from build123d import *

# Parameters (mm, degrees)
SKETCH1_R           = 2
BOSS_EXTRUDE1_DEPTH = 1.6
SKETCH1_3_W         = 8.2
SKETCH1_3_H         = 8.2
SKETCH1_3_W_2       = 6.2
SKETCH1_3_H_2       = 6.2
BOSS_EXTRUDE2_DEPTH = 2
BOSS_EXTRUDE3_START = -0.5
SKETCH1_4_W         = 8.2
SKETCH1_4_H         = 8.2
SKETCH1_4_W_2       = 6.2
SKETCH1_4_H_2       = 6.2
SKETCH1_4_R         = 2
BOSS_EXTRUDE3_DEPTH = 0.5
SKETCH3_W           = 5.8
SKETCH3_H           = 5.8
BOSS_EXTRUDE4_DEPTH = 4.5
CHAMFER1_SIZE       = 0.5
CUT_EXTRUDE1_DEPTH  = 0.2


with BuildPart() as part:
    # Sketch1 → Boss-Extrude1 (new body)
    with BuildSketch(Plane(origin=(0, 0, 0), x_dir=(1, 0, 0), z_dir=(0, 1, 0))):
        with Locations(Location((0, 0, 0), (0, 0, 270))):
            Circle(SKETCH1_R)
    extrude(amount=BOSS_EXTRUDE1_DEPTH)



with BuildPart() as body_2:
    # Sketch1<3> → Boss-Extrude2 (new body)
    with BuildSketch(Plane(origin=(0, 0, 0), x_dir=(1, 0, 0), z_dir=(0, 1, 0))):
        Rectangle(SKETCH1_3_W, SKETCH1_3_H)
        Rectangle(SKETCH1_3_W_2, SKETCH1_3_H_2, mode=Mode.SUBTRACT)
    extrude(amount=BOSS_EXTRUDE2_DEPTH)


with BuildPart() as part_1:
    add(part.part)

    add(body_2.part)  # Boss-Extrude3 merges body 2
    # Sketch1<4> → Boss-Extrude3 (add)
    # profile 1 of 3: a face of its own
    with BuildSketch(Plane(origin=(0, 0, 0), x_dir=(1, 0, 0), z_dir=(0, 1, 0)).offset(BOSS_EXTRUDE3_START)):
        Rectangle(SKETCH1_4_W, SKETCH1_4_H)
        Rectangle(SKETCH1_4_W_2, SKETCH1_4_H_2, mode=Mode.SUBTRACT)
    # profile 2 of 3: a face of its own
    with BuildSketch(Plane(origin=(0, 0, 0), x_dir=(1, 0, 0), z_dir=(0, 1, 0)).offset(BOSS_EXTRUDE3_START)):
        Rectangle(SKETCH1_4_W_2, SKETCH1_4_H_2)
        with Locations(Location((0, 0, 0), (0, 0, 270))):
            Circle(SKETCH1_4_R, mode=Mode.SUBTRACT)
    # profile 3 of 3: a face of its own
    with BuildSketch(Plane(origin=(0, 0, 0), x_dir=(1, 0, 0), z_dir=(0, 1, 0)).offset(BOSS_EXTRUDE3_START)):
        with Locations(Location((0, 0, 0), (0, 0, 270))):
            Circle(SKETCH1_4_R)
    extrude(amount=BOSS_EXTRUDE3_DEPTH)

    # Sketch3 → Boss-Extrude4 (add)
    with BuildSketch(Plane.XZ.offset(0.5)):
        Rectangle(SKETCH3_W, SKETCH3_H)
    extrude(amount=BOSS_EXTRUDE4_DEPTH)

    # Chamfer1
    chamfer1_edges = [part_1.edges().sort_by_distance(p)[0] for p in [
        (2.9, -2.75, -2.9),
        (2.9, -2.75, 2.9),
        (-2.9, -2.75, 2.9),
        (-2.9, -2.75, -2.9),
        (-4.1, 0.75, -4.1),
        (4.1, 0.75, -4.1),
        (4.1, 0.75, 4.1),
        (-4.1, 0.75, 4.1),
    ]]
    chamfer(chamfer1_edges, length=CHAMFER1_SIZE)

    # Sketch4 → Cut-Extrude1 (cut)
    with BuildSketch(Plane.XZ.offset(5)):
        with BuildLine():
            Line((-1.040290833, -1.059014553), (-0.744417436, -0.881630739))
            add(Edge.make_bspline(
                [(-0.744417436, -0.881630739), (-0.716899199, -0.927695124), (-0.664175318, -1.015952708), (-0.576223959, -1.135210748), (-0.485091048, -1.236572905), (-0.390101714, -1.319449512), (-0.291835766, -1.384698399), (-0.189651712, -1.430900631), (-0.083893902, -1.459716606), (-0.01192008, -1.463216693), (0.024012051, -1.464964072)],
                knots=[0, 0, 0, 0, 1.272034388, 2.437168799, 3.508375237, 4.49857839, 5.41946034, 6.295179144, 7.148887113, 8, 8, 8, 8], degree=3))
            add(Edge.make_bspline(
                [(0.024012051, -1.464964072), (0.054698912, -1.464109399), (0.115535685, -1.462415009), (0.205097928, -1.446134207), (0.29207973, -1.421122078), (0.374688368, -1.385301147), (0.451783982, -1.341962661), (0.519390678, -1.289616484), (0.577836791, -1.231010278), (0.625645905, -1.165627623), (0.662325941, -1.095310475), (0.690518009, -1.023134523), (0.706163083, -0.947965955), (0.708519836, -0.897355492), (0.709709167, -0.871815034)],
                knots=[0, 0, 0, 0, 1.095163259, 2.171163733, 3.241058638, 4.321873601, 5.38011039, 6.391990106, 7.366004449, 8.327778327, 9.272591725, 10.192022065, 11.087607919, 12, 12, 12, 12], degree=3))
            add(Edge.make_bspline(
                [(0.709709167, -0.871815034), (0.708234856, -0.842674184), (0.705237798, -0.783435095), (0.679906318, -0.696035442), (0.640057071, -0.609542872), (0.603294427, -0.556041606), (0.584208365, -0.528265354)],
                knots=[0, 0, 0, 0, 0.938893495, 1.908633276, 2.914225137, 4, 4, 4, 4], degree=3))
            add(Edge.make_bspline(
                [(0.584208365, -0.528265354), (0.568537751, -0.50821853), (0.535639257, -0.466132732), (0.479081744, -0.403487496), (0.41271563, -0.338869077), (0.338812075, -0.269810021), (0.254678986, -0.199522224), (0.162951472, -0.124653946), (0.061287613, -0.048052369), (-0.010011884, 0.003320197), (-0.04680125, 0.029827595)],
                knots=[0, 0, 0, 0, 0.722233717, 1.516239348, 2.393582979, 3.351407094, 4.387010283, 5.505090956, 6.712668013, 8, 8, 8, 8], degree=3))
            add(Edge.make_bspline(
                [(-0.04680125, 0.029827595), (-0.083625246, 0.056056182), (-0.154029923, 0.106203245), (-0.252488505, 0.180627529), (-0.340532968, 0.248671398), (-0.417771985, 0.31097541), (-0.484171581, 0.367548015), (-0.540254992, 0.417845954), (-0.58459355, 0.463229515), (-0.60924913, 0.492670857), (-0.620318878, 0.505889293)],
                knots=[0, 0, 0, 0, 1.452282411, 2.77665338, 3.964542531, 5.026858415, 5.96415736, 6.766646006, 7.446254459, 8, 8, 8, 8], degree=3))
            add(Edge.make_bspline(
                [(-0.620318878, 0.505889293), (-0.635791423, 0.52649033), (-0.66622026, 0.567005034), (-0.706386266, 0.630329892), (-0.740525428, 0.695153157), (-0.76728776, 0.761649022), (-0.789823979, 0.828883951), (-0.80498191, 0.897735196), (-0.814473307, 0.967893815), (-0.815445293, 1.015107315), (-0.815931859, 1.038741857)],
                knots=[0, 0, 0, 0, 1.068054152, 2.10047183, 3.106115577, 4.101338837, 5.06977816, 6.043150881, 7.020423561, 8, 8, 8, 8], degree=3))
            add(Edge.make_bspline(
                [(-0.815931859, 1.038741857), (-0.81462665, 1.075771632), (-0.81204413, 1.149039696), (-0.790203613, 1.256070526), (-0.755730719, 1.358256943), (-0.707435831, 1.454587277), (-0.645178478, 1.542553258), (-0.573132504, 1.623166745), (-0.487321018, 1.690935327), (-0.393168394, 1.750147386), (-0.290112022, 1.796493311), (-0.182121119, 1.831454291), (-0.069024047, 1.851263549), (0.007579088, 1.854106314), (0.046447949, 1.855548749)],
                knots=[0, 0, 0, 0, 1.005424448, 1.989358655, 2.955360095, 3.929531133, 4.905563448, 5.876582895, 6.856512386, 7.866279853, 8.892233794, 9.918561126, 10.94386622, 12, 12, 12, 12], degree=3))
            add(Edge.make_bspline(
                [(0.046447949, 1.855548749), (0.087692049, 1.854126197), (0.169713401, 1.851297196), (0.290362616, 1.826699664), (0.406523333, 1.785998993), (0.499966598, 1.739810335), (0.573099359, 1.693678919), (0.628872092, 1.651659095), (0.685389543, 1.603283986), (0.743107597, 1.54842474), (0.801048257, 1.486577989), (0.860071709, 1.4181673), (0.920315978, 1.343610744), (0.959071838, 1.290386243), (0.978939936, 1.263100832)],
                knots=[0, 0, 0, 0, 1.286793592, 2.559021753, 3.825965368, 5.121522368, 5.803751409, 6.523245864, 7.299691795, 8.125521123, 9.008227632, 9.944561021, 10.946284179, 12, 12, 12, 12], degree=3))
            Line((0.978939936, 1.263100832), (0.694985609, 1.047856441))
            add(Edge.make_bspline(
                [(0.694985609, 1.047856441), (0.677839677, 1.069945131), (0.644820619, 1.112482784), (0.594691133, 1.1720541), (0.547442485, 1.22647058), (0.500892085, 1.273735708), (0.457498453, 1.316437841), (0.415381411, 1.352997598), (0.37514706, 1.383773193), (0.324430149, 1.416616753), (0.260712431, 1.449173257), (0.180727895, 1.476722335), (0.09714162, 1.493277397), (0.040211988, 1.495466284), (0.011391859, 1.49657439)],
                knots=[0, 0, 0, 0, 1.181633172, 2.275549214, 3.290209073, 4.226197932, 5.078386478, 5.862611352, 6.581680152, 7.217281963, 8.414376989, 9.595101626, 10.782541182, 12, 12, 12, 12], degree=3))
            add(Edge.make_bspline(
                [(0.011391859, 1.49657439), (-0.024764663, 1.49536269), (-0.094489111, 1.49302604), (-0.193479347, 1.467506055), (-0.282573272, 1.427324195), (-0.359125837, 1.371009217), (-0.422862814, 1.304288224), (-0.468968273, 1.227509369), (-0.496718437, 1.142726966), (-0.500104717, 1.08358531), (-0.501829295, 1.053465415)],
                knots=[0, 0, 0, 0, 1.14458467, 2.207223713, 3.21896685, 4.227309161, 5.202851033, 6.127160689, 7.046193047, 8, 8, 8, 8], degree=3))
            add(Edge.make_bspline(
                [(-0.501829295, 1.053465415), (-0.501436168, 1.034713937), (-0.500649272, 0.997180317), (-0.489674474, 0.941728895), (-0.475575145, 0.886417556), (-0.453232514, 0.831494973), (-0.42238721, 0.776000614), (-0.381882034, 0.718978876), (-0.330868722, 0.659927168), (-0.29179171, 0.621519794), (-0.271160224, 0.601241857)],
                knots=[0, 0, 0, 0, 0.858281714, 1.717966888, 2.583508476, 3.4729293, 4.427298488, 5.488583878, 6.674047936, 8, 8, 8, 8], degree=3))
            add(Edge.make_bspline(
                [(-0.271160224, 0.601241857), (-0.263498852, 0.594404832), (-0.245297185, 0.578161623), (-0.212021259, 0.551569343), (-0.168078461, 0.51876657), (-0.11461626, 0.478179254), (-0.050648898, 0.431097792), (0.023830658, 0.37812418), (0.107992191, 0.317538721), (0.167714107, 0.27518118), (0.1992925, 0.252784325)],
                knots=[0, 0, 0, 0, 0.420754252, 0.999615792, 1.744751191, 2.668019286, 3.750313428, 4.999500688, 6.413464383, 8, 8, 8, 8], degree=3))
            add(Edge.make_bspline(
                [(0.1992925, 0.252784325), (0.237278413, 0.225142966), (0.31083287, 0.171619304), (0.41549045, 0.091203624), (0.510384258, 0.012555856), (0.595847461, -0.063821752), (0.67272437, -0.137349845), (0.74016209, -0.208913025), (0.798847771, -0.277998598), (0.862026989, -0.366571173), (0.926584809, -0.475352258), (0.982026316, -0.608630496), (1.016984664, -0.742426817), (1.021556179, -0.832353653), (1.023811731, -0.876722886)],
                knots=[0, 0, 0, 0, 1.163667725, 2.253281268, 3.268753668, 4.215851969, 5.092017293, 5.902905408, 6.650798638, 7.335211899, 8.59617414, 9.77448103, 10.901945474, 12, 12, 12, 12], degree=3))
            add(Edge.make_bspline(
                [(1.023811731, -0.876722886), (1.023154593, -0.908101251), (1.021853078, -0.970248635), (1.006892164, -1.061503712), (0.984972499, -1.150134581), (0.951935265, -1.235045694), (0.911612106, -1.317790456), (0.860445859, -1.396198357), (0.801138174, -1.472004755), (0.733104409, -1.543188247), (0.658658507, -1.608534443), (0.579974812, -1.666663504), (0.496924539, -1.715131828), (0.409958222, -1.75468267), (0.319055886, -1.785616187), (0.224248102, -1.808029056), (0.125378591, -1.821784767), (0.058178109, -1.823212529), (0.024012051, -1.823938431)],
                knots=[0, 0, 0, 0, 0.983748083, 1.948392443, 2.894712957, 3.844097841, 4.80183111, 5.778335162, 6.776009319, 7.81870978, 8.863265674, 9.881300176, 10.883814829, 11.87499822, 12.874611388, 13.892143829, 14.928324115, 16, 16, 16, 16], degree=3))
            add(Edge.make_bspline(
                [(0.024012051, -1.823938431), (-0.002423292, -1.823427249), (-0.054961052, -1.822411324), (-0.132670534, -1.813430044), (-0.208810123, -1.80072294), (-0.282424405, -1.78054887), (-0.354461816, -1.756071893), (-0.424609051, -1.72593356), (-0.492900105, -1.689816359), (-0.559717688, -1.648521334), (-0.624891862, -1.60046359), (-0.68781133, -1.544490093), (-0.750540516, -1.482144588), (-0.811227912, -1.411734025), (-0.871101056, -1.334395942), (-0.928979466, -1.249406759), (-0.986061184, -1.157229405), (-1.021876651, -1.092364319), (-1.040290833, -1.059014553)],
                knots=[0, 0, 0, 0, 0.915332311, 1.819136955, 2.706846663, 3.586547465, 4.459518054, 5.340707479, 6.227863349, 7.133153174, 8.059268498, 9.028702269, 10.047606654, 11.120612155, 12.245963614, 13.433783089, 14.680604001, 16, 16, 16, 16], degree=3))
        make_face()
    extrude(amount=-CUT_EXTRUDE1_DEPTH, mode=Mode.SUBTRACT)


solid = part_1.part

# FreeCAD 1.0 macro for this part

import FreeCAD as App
import Part
import Sketcher
Q = App.Units.Quantity


def edges_at(feature, points):
    """Names of the edges that pass closest to the given points."""
    edges = feature.Shape.Edges
    near = lambda p: min(range(len(edges)), key=lambda i: edges[i].distToShape(Part.Vertex(*p))[0])
    return sorted({f"Edge{near(p) + 1}" for p in points})

doc = App.newDocument("Part")
body = doc.addObject("PartDesign::Body", "Body")

sketch1 = body.newObject("Sketcher::SketchObject", "Sketch")
sketch1.AttachmentSupport = (doc.getObject("XZ_Plane"), [""])
sketch1.MapMode = "FlatFace"
sketch1.addGeometry(Part.Circle(App.Vector(0, 0, 0), App.Vector(0, 0, 1), 2), False)
sketch1.addConstraint([
    Sketcher.Constraint("Coincident", 0, 3, -1, 1),
    Sketcher.Constraint("Diameter", 0, Q("4 mm")),
])
pad1 = body.newObject("PartDesign::Pad", "Pad")
pad1.Profile = sketch1
pad1.Length = 1.6
pad1.Reversed = True
body2 = doc.addObject("PartDesign::Body", "Body001")

sketch2 = body2.newObject("Sketcher::SketchObject", "Sketch001")
sketch2.AttachmentSupport = (doc.getObject("XZ_Plane001"), [""])
sketch2.MapMode = "FlatFace"
sketch2.addGeometry([
    Part.LineSegment(App.Vector(-4, -4, 0), App.Vector(-4, 4, 0)),
    Part.LineSegment(App.Vector(-4, 4, 0), App.Vector(4, 4, 0)),
    Part.LineSegment(App.Vector(4, 4, 0), App.Vector(4, -4, 0)),
    Part.LineSegment(App.Vector(4, -4, 0), App.Vector(-4, -4, 0)),
    Part.LineSegment(App.Vector(3, 3, 0), App.Vector(-3, 3, 0)),
    Part.LineSegment(App.Vector(-3, 3, 0), App.Vector(-3, -3, 0)),
    Part.LineSegment(App.Vector(-3, -3, 0), App.Vector(3, -3, 0)),
    Part.LineSegment(App.Vector(3, -3, 0), App.Vector(3, 3, 0)),
], False)
sketch2.addConstraint([
    Sketcher.Constraint("Coincident", 0, 2, 1, 1),
    Sketcher.Constraint("Coincident", 1, 2, 2, 1),
    Sketcher.Constraint("Coincident", 2, 2, 3, 1),
    Sketcher.Constraint("Coincident", 3, 2, 0, 1),
    Sketcher.Constraint("Coincident", 4, 2, 5, 1),
    Sketcher.Constraint("Coincident", 5, 2, 6, 1),
    Sketcher.Constraint("Coincident", 6, 2, 7, 1),
    Sketcher.Constraint("Coincident", 7, 2, 4, 1),
    Sketcher.Constraint("Vertical", 0),
    Sketcher.Constraint("Horizontal", 1),
    Sketcher.Constraint("Vertical", 2),
    Sketcher.Constraint("Horizontal", 3),
    Sketcher.Constraint("Horizontal", 4),
    Sketcher.Constraint("Vertical", 5),
    Sketcher.Constraint("Horizontal", 6),
    Sketcher.Constraint("Vertical", 7),
    Sketcher.Constraint("Symmetric", 0, 2, 2, 2, -1, 1),
    Sketcher.Constraint("Symmetric", 4, 2, 6, 2, -1, 1),
    Sketcher.Constraint("Equal", 3, 0),
    Sketcher.Constraint("Equal", 6, 5),
    Sketcher.Constraint("DistanceX", 1, 1, 1, 2, Q("8.2 mm")),
    Sketcher.Constraint("DistanceX", 4, 2, 4, 1, Q("6.2 mm")),
])
pad2 = body2.newObject("PartDesign::Pad", "Pad001")
pad2.Profile = sketch2
pad2.Length = 2
pad2.Reversed = True
body.AllowCompound = True
doc.recompute()

boolean = body.newObject("PartDesign::Boolean", "Boolean")
boolean.Type = "Fuse"
boolean.addObjects([body2])

sketch3 = body.newObject("Sketcher::SketchObject", "Sketch002")
sketch3.AttachmentSupport = (doc.getObject("XZ_Plane"), [""])
sketch3.MapMode = "FlatFace"
sketch3.AttachmentOffset = App.Placement(App.Vector(0, 0, 0.5), App.Rotation())
sketch3.addGeometry([
    Part.LineSegment(App.Vector(-4, -4, 0), App.Vector(-4, 4, 0)),
    Part.LineSegment(App.Vector(-4, 4, 0), App.Vector(4, 4, 0)),
    Part.LineSegment(App.Vector(4, 4, 0), App.Vector(4, -4, 0)),
    Part.LineSegment(App.Vector(4, -4, 0), App.Vector(-4, -4, 0)),
], False)
sketch3.addConstraint([
    Sketcher.Constraint("Coincident", 0, 2, 1, 1),
    Sketcher.Constraint("Coincident", 1, 2, 2, 1),
    Sketcher.Constraint("Coincident", 2, 2, 3, 1),
    Sketcher.Constraint("Coincident", 3, 2, 0, 1),
    Sketcher.Constraint("Vertical", 0),
    Sketcher.Constraint("Horizontal", 1),
    Sketcher.Constraint("Vertical", 2),
    Sketcher.Constraint("Horizontal", 3),
    Sketcher.Constraint("Symmetric", 0, 2, 2, 2, -1, 1),
    Sketcher.Constraint("Equal", 3, 0),
    Sketcher.Constraint("DistanceX", 1, 1, 1, 2, Q("8.2 mm")),
])
pad3 = body.newObject("PartDesign::Pad", "Pad002")
pad3.Profile = sketch3
pad3.Length = 0.5
pad3.Reversed = True

sketch4 = body.newObject("Sketcher::SketchObject", "Sketch003")
sketch4.AttachmentSupport = (doc.getObject("XZ_Plane"), [""])
sketch4.MapMode = "FlatFace"
sketch4.AttachmentOffset = App.Placement(App.Vector(0, 0, 0.5), App.Rotation())
sketch4.addGeometry([
    Part.LineSegment(App.Vector(-3, 3, 0), App.Vector(-3, -3, 0)),
    Part.LineSegment(App.Vector(-3, -3, 0), App.Vector(3, -3, 0)),
    Part.LineSegment(App.Vector(3, -3, 0), App.Vector(3, 3, 0)),
    Part.LineSegment(App.Vector(3, 3, 0), App.Vector(-3, 3, 0)),
], False)
sketch4.addConstraint([
    Sketcher.Constraint("Coincident", 0, 2, 1, 1),
    Sketcher.Constraint("Coincident", 1, 2, 2, 1),
    Sketcher.Constraint("Coincident", 2, 2, 3, 1),
    Sketcher.Constraint("Coincident", 3, 2, 0, 1),
    Sketcher.Constraint("Vertical", 0),
    Sketcher.Constraint("Horizontal", 1),
    Sketcher.Constraint("Vertical", 2),
    Sketcher.Constraint("Horizontal", 3),
    Sketcher.Constraint("Symmetric", 0, 2, 2, 2, -1, 1),
    Sketcher.Constraint("Equal", 3, 0),
    Sketcher.Constraint("DistanceX", 1, 1, 1, 2, Q("5.8 mm")),
])
pad4 = body.newObject("PartDesign::Pad", "Pad003")
pad4.Profile = sketch4
pad4.Length = 4.5
doc.recompute()

chamfer = body.newObject("PartDesign::Chamfer", "Chamfer")
chamfer.Base = (pad4, edges_at(pad4, [
    (2.9, -2.75, -2.9),
    (2.9, -2.75, 2.9),
    (-2.9, -2.75, 2.9),
    (-2.9, -2.75, -2.9),
    (-4.1, 0.75, -4.1),
    (4.1, 0.75, -4.1),
    (4.1, 0.75, 4.1),
    (-4.1, 0.75, 4.1),
]))
chamfer.Size = 0.5

sketch5 = body.newObject("Sketcher::SketchObject", "Sketch004")
sketch5.AttachmentSupport = (doc.getObject("XZ_Plane"), [""])
sketch5.MapMode = "FlatFace"
sketch5.AttachmentOffset = App.Placement(App.Vector(0, 0, 5), App.Rotation())
sketch5.addGeometry([
    Part.LineSegment(App.Vector(-0.744417, -0.881631, 0), App.Vector(-1.040291, -1.059015, 0)),
    Part.BSplineCurve([App.Vector(0.024012, -1.823938, 0), App.Vector(-0.002423, -1.823427, 0), App.Vector(-0.054961, -1.822411, 0), App.Vector(-0.132671, -1.81343, 0), App.Vector(-0.20881, -1.800723, 0), App.Vector(-0.282424, -1.780549, 0), App.Vector(-0.354462, -1.756072, 0), App.Vector(-0.424609, -1.725934, 0), App.Vector(-0.4929, -1.689816, 0), App.Vector(-0.559718, -1.648521, 0), App.Vector(-0.624892, -1.600464, 0), App.Vector(-0.687811, -1.54449, 0), App.Vector(-0.750541, -1.482145, 0), App.Vector(-0.811228, -1.411734, 0), App.Vector(-0.871101, -1.334396, 0), App.Vector(-0.928979, -1.249407, 0), App.Vector(-0.986061, -1.157229, 0), App.Vector(-1.021877, -1.092364, 0), App.Vector(-1.040291, -1.059015, 0)], [4, 1, 1, 1, 1, 1, 1, 1, 1, 1, 1, 1, 1, 1, 1, 1, 4], [0, 0.915332311, 1.819136955, 2.706846663, 3.586547465, 4.459518054, 5.340707479, 6.227863349, 7.133153174, 8.059268498, 9.028702269, 10.047606654, 11.120612155, 12.245963614, 13.433783089, 14.680604001, 16], False, 3, [1, 1, 1, 1, 1, 1, 1, 1, 1, 1, 1, 1, 1, 1, 1, 1, 1, 1, 1], False),
    Part.BSplineCurve([App.Vector(1.023812, -0.876723, 0), App.Vector(1.023155, -0.908101, 0), App.Vector(1.021853, -0.970249, 0), App.Vector(1.006892, -1.061504, 0), App.Vector(0.984972, -1.150135, 0), App.Vector(0.951935, -1.235046, 0), App.Vector(0.911612, -1.31779, 0), App.Vector(0.860446, -1.396198, 0), App.Vector(0.801138, -1.472005, 0), App.Vector(0.733104, -1.543188, 0), App.Vector(0.658659, -1.608534, 0), App.Vector(0.579975, -1.666664, 0), App.Vector(0.496925, -1.715132, 0), App.Vector(0.409958, -1.754683, 0), App.Vector(0.319056, -1.785616, 0), App.Vector(0.224248, -1.808029, 0), App.Vector(0.125379, -1.821785, 0), App.Vector(0.058178, -1.823213, 0), App.Vector(0.024012, -1.823938, 0)], [4, 1, 1, 1, 1, 1, 1, 1, 1, 1, 1, 1, 1, 1, 1, 1, 4], [0, 0.983748083, 1.948392443, 2.894712957, 3.844097841, 4.80183111, 5.778335162, 6.776009319, 7.81870978, 8.863265674, 9.881300176, 10.883814829, 11.87499822, 12.874611388, 13.892143829, 14.928324115, 16], False, 3, [1, 1, 1, 1, 1, 1, 1, 1, 1, 1, 1, 1, 1, 1, 1, 1, 1, 1, 1], False),
    Part.BSplineCurve([App.Vector(0.199293, 0.252784, 0), App.Vector(0.237278, 0.225143, 0), App.Vector(0.310833, 0.171619, 0), App.Vector(0.41549, 0.091204, 0), App.Vector(0.510384, 0.012556, 0), App.Vector(0.595847, -0.063822, 0), App.Vector(0.672724, -0.13735, 0), App.Vector(0.740162, -0.208913, 0), App.Vector(0.798848, -0.277999, 0), App.Vector(0.862027, -0.366571, 0), App.Vector(0.926585, -0.475352, 0), App.Vector(0.982026, -0.60863, 0), App.Vector(1.016985, -0.742427, 0), App.Vector(1.021556, -0.832354, 0), App.Vector(1.023812, -0.876723, 0)], [4, 1, 1, 1, 1, 1, 1, 1, 1, 1, 1, 1, 4], [0, 1.163667725, 2.253281268, 3.268753668, 4.215851969, 5.092017293, 5.902905408, 6.650798638, 7.335211899, 8.59617414, 9.77448103, 10.901945474, 12], False, 3, [1, 1, 1, 1, 1, 1, 1, 1, 1, 1, 1, 1, 1, 1, 1], False),
    Part.BSplineCurve([App.Vector(-0.27116, 0.601242, 0), App.Vector(-0.263499, 0.594405, 0), App.Vector(-0.245297, 0.578162, 0), App.Vector(-0.212021, 0.551569, 0), App.Vector(-0.168078, 0.518767, 0), App.Vector(-0.114616, 0.478179, 0), App.Vector(-0.050649, 0.431098, 0), App.Vector(0.023831, 0.378124, 0), App.Vector(0.107992, 0.317539, 0), App.Vector(0.167714, 0.275181, 0), App.Vector(0.199293, 0.252784, 0)], [4, 1, 1, 1, 1, 1, 1, 1, 4], [0, 0.420754252, 0.999615792, 1.744751191, 2.668019286, 3.750313428, 4.999500688, 6.413464383, 8], False, 3, [1, 1, 1, 1, 1, 1, 1, 1, 1, 1, 1], False),
    Part.BSplineCurve([App.Vector(-0.501829, 1.053465, 0), App.Vector(-0.501436, 1.034714, 0), App.Vector(-0.500649, 0.99718, 0), App.Vector(-0.489674, 0.941729, 0), App.Vector(-0.475575, 0.886418, 0), App.Vector(-0.453233, 0.831495, 0), App.Vector(-0.422387, 0.776001, 0), App.Vector(-0.381882, 0.718979, 0), App.Vector(-0.330869, 0.659927, 0), App.Vector(-0.291792, 0.62152, 0), App.Vector(-0.27116, 0.601242, 0)], [4, 1, 1, 1, 1, 1, 1, 1, 4], [0, 0.858281714, 1.717966888, 2.583508476, 3.4729293, 4.427298488, 5.488583878, 6.674047936, 8], False, 3, [1, 1, 1, 1, 1, 1, 1, 1, 1, 1, 1], False),
    Part.BSplineCurve([App.Vector(0.011392, 1.496574, 0), App.Vector(-0.024765, 1.495363, 0), App.Vector(-0.094489, 1.493026, 0), App.Vector(-0.193479, 1.467506, 0), App.Vector(-0.282573, 1.427324, 0), App.Vector(-0.359126, 1.371009, 0), App.Vector(-0.422863, 1.304288, 0), App.Vector(-0.468968, 1.227509, 0), App.Vector(-0.496718, 1.142727, 0), App.Vector(-0.500105, 1.083585, 0), App.Vector(-0.501829, 1.053465, 0)], [4, 1, 1, 1, 1, 1, 1, 1, 4], [0, 1.14458467, 2.207223713, 3.21896685, 4.227309161, 5.202851033, 6.127160689, 7.046193047, 8], False, 3, [1, 1, 1, 1, 1, 1, 1, 1, 1, 1, 1], False),
    Part.BSplineCurve([App.Vector(0.694986, 1.047856, 0), App.Vector(0.67784, 1.069945, 0), App.Vector(0.644821, 1.112483, 0), App.Vector(0.594691, 1.172054, 0), App.Vector(0.547442, 1.226471, 0), App.Vector(0.500892, 1.273736, 0), App.Vector(0.457498, 1.316438, 0), App.Vector(0.415381, 1.352998, 0), App.Vector(0.375147, 1.383773, 0), App.Vector(0.32443, 1.416617, 0), App.Vector(0.260712, 1.449173, 0), App.Vector(0.180728, 1.476722, 0), App.Vector(0.097142, 1.493277, 0), App.Vector(0.040212, 1.495466, 0), App.Vector(0.011392, 1.496574, 0)], [4, 1, 1, 1, 1, 1, 1, 1, 1, 1, 1, 1, 4], [0, 1.181633172, 2.275549214, 3.290209073, 4.226197932, 5.078386478, 5.862611352, 6.581680152, 7.217281963, 8.414376989, 9.595101626, 10.782541182, 12], False, 3, [1, 1, 1, 1, 1, 1, 1, 1, 1, 1, 1, 1, 1, 1, 1], False),
    Part.LineSegment(App.Vector(0.694986, 1.047856, 0), App.Vector(0.97894, 1.263101, 0)),
    Part.BSplineCurve([App.Vector(0.046448, 1.855549, 0), App.Vector(0.087692, 1.854126, 0), App.Vector(0.169713, 1.851297, 0), App.Vector(0.290363, 1.8267, 0), App.Vector(0.406523, 1.785999, 0), App.Vector(0.499967, 1.73981, 0), App.Vector(0.573099, 1.693679, 0), App.Vector(0.628872, 1.651659, 0), App.Vector(0.68539, 1.603284, 0), App.Vector(0.743108, 1.548425, 0), App.Vector(0.801048, 1.486578, 0), App.Vector(0.860072, 1.418167, 0), App.Vector(0.920316, 1.343611, 0), App.Vector(0.959072, 1.290386, 0), App.Vector(0.97894, 1.263101, 0)], [4, 1, 1, 1, 1, 1, 1, 1, 1, 1, 1, 1, 4], [0, 1.286793592, 2.559021753, 3.825965368, 5.121522368, 5.803751409, 6.523245864, 7.299691795, 8.125521123, 9.008227632, 9.944561021, 10.946284179, 12], False, 3, [1, 1, 1, 1, 1, 1, 1, 1, 1, 1, 1, 1, 1, 1, 1], False),
    Part.BSplineCurve([App.Vector(-0.815932, 1.038742, 0), App.Vector(-0.814627, 1.075772, 0), App.Vector(-0.812044, 1.14904, 0), App.Vector(-0.790204, 1.256071, 0), App.Vector(-0.755731, 1.358257, 0), App.Vector(-0.707436, 1.454587, 0), App.Vector(-0.645178, 1.542553, 0), App.Vector(-0.573133, 1.623167, 0), App.Vector(-0.487321, 1.690935, 0), App.Vector(-0.393168, 1.750147, 0), App.Vector(-0.290112, 1.796493, 0), App.Vector(-0.182121, 1.831454, 0), App.Vector(-0.069024, 1.851264, 0), App.Vector(0.007579, 1.854106, 0), App.Vector(0.046448, 1.855549, 0)], [4, 1, 1, 1, 1, 1, 1, 1, 1, 1, 1, 1, 4], [0, 1.005424448, 1.989358655, 2.955360095, 3.929531133, 4.905563448, 5.876582895, 6.856512386, 7.866279853, 8.892233794, 9.918561126, 10.94386622, 12], False, 3, [1, 1, 1, 1, 1, 1, 1, 1, 1, 1, 1, 1, 1, 1, 1], False),
    Part.BSplineCurve([App.Vector(-0.620319, 0.505889, 0), App.Vector(-0.635791, 0.52649, 0), App.Vector(-0.66622, 0.567005, 0), App.Vector(-0.706386, 0.63033, 0), App.Vector(-0.740525, 0.695153, 0), App.Vector(-0.767288, 0.761649, 0), App.Vector(-0.789824, 0.828884, 0), App.Vector(-0.804982, 0.897735, 0), App.Vector(-0.814473, 0.967894, 0), App.Vector(-0.815445, 1.015107, 0), App.Vector(-0.815932, 1.038742, 0)], [4, 1, 1, 1, 1, 1, 1, 1, 4], [0, 1.068054152, 2.10047183, 3.106115577, 4.101338837, 5.06977816, 6.043150881, 7.020423561, 8], False, 3, [1, 1, 1, 1, 1, 1, 1, 1, 1, 1, 1], False),
    Part.BSplineCurve([App.Vector(-0.046801, 0.029828, 0), App.Vector(-0.083625, 0.056056, 0), App.Vector(-0.15403, 0.106203, 0), App.Vector(-0.252489, 0.180628, 0), App.Vector(-0.340533, 0.248671, 0), App.Vector(-0.417772, 0.310975, 0), App.Vector(-0.484172, 0.367548, 0), App.Vector(-0.540255, 0.417846, 0), App.Vector(-0.584594, 0.46323, 0), App.Vector(-0.609249, 0.492671, 0), App.Vector(-0.620319, 0.505889, 0)], [4, 1, 1, 1, 1, 1, 1, 1, 4], [0, 1.452282411, 2.77665338, 3.964542531, 5.026858415, 5.96415736, 6.766646006, 7.446254459, 8], False, 3, [1, 1, 1, 1, 1, 1, 1, 1, 1, 1, 1], False),
    Part.BSplineCurve([App.Vector(0.584208, -0.528265, 0), App.Vector(0.568538, -0.508219, 0), App.Vector(0.535639, -0.466133, 0), App.Vector(0.479082, -0.403487, 0), App.Vector(0.412716, -0.338869, 0), App.Vector(0.338812, -0.26981, 0), App.Vector(0.254679, -0.199522, 0), App.Vector(0.162951, -0.124654, 0), App.Vector(0.061288, -0.048052, 0), App.Vector(-0.010012, 0.00332, 0), App.Vector(-0.046801, 0.029828, 0)], [4, 1, 1, 1, 1, 1, 1, 1, 4], [0, 0.722233717, 1.516239348, 2.393582979, 3.351407094, 4.387010283, 5.505090956, 6.712668013, 8], False, 3, [1, 1, 1, 1, 1, 1, 1, 1, 1, 1, 1], False),
    Part.BSplineCurve([App.Vector(0.709709, -0.871815, 0), App.Vector(0.708235, -0.842674, 0), App.Vector(0.705238, -0.783435, 0), App.Vector(0.679906, -0.696035, 0), App.Vector(0.640057, -0.609543, 0), App.Vector(0.603294, -0.556042, 0), App.Vector(0.584208, -0.528265, 0)], [4, 1, 1, 1, 4], [0, 0.938893495, 1.908633276, 2.914225137, 4], False, 3, [1, 1, 1, 1, 1, 1, 1], False),
    Part.BSplineCurve([App.Vector(0.024012, -1.464964, 0), App.Vector(0.054699, -1.464109, 0), App.Vector(0.115536, -1.462415, 0), App.Vector(0.205098, -1.446134, 0), App.Vector(0.29208, -1.421122, 0), App.Vector(0.374688, -1.385301, 0), App.Vector(0.451784, -1.341963, 0), App.Vector(0.519391, -1.289616, 0), App.Vector(0.577837, -1.23101, 0), App.Vector(0.625646, -1.165628, 0), App.Vector(0.662326, -1.09531, 0), App.Vector(0.690518, -1.023135, 0), App.Vector(0.706163, -0.947966, 0), App.Vector(0.70852, -0.897355, 0), App.Vector(0.709709, -0.871815, 0)], [4, 1, 1, 1, 1, 1, 1, 1, 1, 1, 1, 1, 4], [0, 1.095163259, 2.171163733, 3.241058638, 4.321873601, 5.38011039, 6.391990106, 7.366004449, 8.327778327, 9.272591725, 10.192022065, 11.087607919, 12], False, 3, [1, 1, 1, 1, 1, 1, 1, 1, 1, 1, 1, 1, 1, 1, 1], False),
    Part.BSplineCurve([App.Vector(-0.744417, -0.881631, 0), App.Vector(-0.716899, -0.927695, 0), App.Vector(-0.664175, -1.015953, 0), App.Vector(-0.576224, -1.135211, 0), App.Vector(-0.485091, -1.236573, 0), App.Vector(-0.390102, -1.31945, 0), App.Vector(-0.291836, -1.384698, 0), App.Vector(-0.189652, -1.430901, 0), App.Vector(-0.083894, -1.459717, 0), App.Vector(-0.01192, -1.463217, 0), App.Vector(0.024012, -1.464964, 0)], [4, 1, 1, 1, 1, 1, 1, 1, 4], [0, 1.272034388, 2.437168799, 3.508375237, 4.49857839, 5.41946034, 6.295179144, 7.148887113, 8], False, 3, [1, 1, 1, 1, 1, 1, 1, 1, 1, 1, 1], False),
], False)
sketch5.addConstraint([
    Sketcher.Constraint("Block", 1),
    Sketcher.Constraint("Block", 2),
    Sketcher.Constraint("Block", 3),
    Sketcher.Constraint("Block", 4),
    Sketcher.Constraint("Block", 5),
    Sketcher.Constraint("Block", 6),
    Sketcher.Constraint("Block", 7),
    Sketcher.Constraint("Block", 9),
    Sketcher.Constraint("Block", 10),
    Sketcher.Constraint("Block", 11),
    Sketcher.Constraint("Block", 12),
    Sketcher.Constraint("Block", 13),
    Sketcher.Constraint("Block", 14),
    Sketcher.Constraint("Block", 15),
    Sketcher.Constraint("Block", 16),
    Sketcher.Constraint("Coincident", 0, 2, 1, 2),
    Sketcher.Constraint("Coincident", 7, 1, 8, 1),
    Sketcher.Constraint("Coincident", 8, 2, 9, 2),
    Sketcher.Constraint("Coincident", 16, 1, 0, 1),
])
pocket1 = body.newObject("PartDesign::Pocket", "Pocket")
pocket1.Profile = sketch5
pocket1.Length = 0.2

doc.recompute()
